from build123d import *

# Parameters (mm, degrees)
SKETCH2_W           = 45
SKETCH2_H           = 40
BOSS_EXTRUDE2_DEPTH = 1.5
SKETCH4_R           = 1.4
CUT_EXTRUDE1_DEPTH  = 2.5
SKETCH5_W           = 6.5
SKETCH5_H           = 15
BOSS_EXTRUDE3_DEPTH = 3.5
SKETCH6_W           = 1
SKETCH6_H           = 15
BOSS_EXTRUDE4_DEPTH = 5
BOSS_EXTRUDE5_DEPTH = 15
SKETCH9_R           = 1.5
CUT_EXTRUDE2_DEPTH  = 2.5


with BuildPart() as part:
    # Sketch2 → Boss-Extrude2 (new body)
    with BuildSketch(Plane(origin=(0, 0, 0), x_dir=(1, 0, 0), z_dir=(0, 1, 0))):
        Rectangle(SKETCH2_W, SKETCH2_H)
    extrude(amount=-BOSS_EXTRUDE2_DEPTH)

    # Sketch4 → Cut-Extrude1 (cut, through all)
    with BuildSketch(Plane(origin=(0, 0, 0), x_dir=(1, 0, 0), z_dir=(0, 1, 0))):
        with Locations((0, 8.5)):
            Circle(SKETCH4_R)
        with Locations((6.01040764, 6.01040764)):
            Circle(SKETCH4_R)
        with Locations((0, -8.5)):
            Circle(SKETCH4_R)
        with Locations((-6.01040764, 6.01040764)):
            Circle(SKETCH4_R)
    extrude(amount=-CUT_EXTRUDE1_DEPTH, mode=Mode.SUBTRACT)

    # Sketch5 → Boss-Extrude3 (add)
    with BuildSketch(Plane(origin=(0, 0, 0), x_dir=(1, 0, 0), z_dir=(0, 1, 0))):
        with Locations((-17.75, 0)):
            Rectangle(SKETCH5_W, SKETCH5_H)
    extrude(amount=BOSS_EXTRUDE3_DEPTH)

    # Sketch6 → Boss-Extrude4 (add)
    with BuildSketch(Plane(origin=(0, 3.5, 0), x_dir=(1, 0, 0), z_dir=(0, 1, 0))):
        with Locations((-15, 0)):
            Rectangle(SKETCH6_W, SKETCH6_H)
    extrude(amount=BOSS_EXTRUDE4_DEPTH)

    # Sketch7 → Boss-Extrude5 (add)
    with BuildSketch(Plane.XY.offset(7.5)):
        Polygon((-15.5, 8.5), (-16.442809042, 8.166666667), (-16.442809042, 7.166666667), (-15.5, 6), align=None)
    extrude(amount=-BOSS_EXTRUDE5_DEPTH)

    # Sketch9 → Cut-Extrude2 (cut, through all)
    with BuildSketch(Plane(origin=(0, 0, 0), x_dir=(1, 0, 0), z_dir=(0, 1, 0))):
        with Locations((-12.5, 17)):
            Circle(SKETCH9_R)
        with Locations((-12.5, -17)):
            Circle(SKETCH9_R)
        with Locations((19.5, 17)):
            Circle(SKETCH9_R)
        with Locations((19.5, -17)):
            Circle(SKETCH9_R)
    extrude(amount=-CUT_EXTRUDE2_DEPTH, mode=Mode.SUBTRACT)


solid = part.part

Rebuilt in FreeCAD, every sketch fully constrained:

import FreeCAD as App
import Part
import Sketcher
from FreeCAD import Vector

doc = App.newDocument("Part")
params = doc.addObject("Spreadsheet::Sheet", "Params")
for row, (alias, value) in enumerate([
    ("sketch1_width", "45 mm"),
    ("sketch1_height", "40 mm"),
    ("pad1_length", "1.5 mm"),
    ("sketch2_diameter", "2.8 mm"),
    ("sketch3_height", "15 mm"),
    ("sketch3_width", "6.5 mm"),
    ("pad2_length", "3.5 mm"),
    ("sketch4_width", "1 mm"),
    ("sketch4_height", "15 mm"),
    ("pad3_length", "5 mm"),
    ("sketch5_height", "1 mm"),
    ("sketch5_length", "1 mm"),
    ("sketch5_height2", "2.5 mm"),
    ("sketch5_length2", "1.5 mm"),
    ("pad4_length", "15 mm"),
    ("sketch6_diameter", "3 mm"),
], start=1):
    params.set(f"A{row}", alias)
    params.set(f"B{row}", "=" + value)
    params.setAlias(f"B{row}", alias)

body = doc.addObject("PartDesign::Body", "Body")

sketch1 = body.newObject("Sketcher::SketchObject", "Sketch")
sketch1.AttachmentSupport = (doc.getObject("XZ_Plane"), [""])
sketch1.MapMode = "FlatFace"
sketch1.addGeometry([
    Part.LineSegment(Vector(-22, -20, 0), Vector(-22, 20, 0)),
    Part.LineSegment(Vector(-22, 20, 0), Vector(22, 20, 0)),
    Part.LineSegment(Vector(22, 20, 0), Vector(22, -20, 0)),
    Part.LineSegment(Vector(22, -20, 0), Vector(-22, -20, 0)),
], False)
sketch1.addConstraint([
    Sketcher.Constraint("Coincident", 0, 2, 1, 1),
    Sketcher.Constraint("Coincident", 1, 2, 2, 1),
    Sketcher.Constraint("Coincident", 2, 2, 3, 1),
    Sketcher.Constraint("Coincident", 3, 2, 0, 1),
    Sketcher.Constraint("Vertical", 0),
    Sketcher.Constraint("Horizontal", 1),
    Sketcher.Constraint("Vertical", 2),
    Sketcher.Constraint("Horizontal", 3),
    Sketcher.Constraint("Symmetric", 0, 2, 2, 2, -1, 1),
    Sketcher.Constraint("DistanceX", 1, 1, 1, 2, 45.0),
    Sketcher.Constraint("DistanceY", 0, 1, 0, 2, 40.0),
])
sketch1.setExpression("Constraints[9]", "Params.sketch1_width")
sketch1.setExpression("Constraints[10]", "Params.sketch1_height")
pad1 = body.newObject("PartDesign::Pad", "Pad")
pad1.Profile = sketch1
pad1.setExpression("Length", "Params.pad1_length")

sketch2 = body.newObject("Sketcher::SketchObject", "Sketch001")
sketch2.AttachmentSupport = (doc.getObject("XZ_Plane"), [""])
sketch2.MapMode = "FlatFace"
sketch2.addGeometry([
    Part.Circle(Vector(0, -8.5, 0), Vector(0, 0, 1), 1.4),
    Part.Circle(Vector(6, -6, 0), Vector(0, 0, 1), 1.4),
    Part.Circle(Vector(0, 8.5, 0), Vector(0, 0, 1), 1.4),
    Part.Circle(Vector(-6, -6, 0), Vector(0, 0, 1), 1.4),
], False)
sketch2.addConstraint([
    Sketcher.Constraint("Equal", 0, 1),
    Sketcher.Constraint("Equal", 1, 2),
    Sketcher.Constraint("Equal", 2, 3),
    Sketcher.Constraint("Symmetric", 0, 3, 2, 3, -1, 1),
    Sketcher.Constraint("Symmetric", 1, 3, 3, 3, -2),
    Sketcher.Constraint("PointOnObject", 0, 3, -2),
    Sketcher.Constraint("Diameter", 0, 2.8),
    Sketcher.Constraint("DistanceY", 0, 3, 2, 3, 17.0),
    Sketcher.Constraint("DistanceX", -1, 1, 1, 3, 6.010408),
    Sketcher.Constraint("DistanceY", 1, 3, -1, 1, 6.010408),
])
sketch2.setExpression("Constraints[6]", "Params.sketch2_diameter")
pocket1 = body.newObject("PartDesign::Pocket", "Pocket")
pocket1.Profile = sketch2
pocket1.Type = "ThroughAll"
pocket1.Reversed = True

sketch3 = body.newObject("Sketcher::SketchObject", "Sketch002")
sketch3.AttachmentSupport = (doc.getObject("XZ_Plane"), [""])
sketch3.MapMode = "FlatFace"
sketch3.addGeometry([
    Part.LineSegment(Vector(-21, -8, 0), Vector(-21, 8, 0)),
    Part.LineSegment(Vector(-21, 8, 0), Vector(-14, 8, 0)),
    Part.LineSegment(Vector(-14, 8, 0), Vector(-14, -8, 0)),
    Part.LineSegment(Vector(-14, -8, 0), Vector(-21, -8, 0)),
], False)
sketch3.addConstraint([
    Sketcher.Constraint("Coincident", 0, 2, 1, 1),
    Sketcher.Constraint("Coincident", 1, 2, 2, 1),
    Sketcher.Constraint("Coincident", 2, 2, 3, 1),
    Sketcher.Constraint("Coincident", 3, 2, 0, 1),
    Sketcher.Constraint("Vertical", 0),
    Sketcher.Constraint("Horizontal", 1),
    Sketcher.Constraint("Vertical", 2),
    Sketcher.Constraint("Horizontal", 3),
    Sketcher.Constraint("DistanceY", 0, 1, 0, 2, 15.0),
    Sketcher.Constraint("DistanceX", 1, 1, 1, 2, 6.5),
    Sketcher.Constraint("DistanceX", 0, 2, -1, 1, 21.0),
    Sketcher.Constraint("DistanceY", -1, 1, 0, 2, 7.5),
])
sketch3.setExpression("Constraints[8]", "Params.sketch3_height")
sketch3.setExpression("Constraints[9]", "Params.sketch3_width")
pad2 = body.newObject("PartDesign::Pad", "Pad001")
pad2.Profile = sketch3
pad2.setExpression("Length", "Params.pad2_length")
pad2.Reversed = True

sketch4 = body.newObject("Sketcher::SketchObject", "Sketch003")
sketch4.AttachmentSupport = (doc.getObject("XZ_Plane"), [""])
sketch4.MapMode = "FlatFace"
sketch4.AttachmentOffset = App.Placement(Vector(0, 0, -3.5), App.Rotation())
sketch4.addGeometry([
    Part.LineSegment(Vector(-15.5, -7.5, 0), Vector(-15.5, 7.5, 0)),
    Part.LineSegment(Vector(-15.5, 7.5, 0), Vector(-14.5, 7.5, 0)),
    Part.LineSegment(Vector(-14.5, 7.5, 0), Vector(-14.5, -7.5, 0)),
    Part.LineSegment(Vector(-14.5, -7.5, 0), Vector(-15.5, -7.5, 0)),
], False)
sketch4.addConstraint([
    Sketcher.Constraint("Coincident", 0, 2, 1, 1),
    Sketcher.Constraint("Coincident", 1, 2, 2, 1),
    Sketcher.Constraint("Coincident", 2, 2, 3, 1),
    Sketcher.Constraint("Coincident", 3, 2, 0, 1),
    Sketcher.Constraint("Vertical", 0),
    Sketcher.Constraint("Horizontal", 1),
    Sketcher.Constraint("Vertical", 2),
    Sketcher.Constraint("Horizontal", 3),
    Sketcher.Constraint("DistanceX", 1, 1, 1, 2, 1.0),
    Sketcher.Constraint("DistanceY", 0, 1, 0, 2, 15.0),
    Sketcher.Constraint("DistanceX", 0, 2, -1, 1, 15.5),
    Sketcher.Constraint("DistanceY", -1, 1, 0, 2, 7.5),
])
sketch4.setExpression("Constraints[8]", "Params.sketch4_width")
sketch4.setExpression("Constraints[9]", "Params.sketch4_height")
pad3 = body.newObject("PartDesign::Pad", "Pad002")
pad3.Profile = sketch4
pad3.setExpression("Length", "Params.pad3_length")
pad3.Reversed = True

sketch5 = body.newObject("Sketcher::SketchObject", "Sketch004")
sketch5.AttachmentSupport = (doc.getObject("XY_Plane"), [""])
sketch5.MapMode = "FlatFace"
sketch5.AttachmentOffset = App.Placement(Vector(0, 0, 7.5), App.Rotation())
sketch5.addGeometry([
    Part.LineSegment(Vector(-15.5, 8.5, 0), Vector(-16.4, 8.2, 0)),
    Part.LineSegment(Vector(-16.4, 8.2, 0), Vector(-16.4, 7.2, 0)),
    Part.LineSegment(Vector(-16.4, 7.2, 0), Vector(-15.5, 6, 0)),
    Part.LineSegment(Vector(-15.5, 6, 0), Vector(-15.5, 8.5, 0)),
], False)
sketch5.addConstraint([
    Sketcher.Constraint("Coincident", 0, 2, 1, 1),
    Sketcher.Constraint("Coincident", 1, 2, 2, 1),
    Sketcher.Constraint("Coincident", 2, 2, 3, 1),
    Sketcher.Constraint("Coincident", 3, 2, 0, 1),
    Sketcher.Constraint("Vertical", 1),
    Sketcher.Constraint("Vertical", 3),
    Sketcher.Constraint("DistanceY", 1, 2, 1, 1, 1.0),
    Sketcher.Constraint("Distance", 0, 1.0),
    Sketcher.Constraint("DistanceY", 3, 1, 3, 2, 2.5),
    Sketcher.Constraint("DistanceY", -1, 1, 2, 2, 6.0),
    Sketcher.Constraint("Distance", 2, 1.5),
    Sketcher.Constraint("DistanceX", 2, 2, -1, 1, 15.5),
])
sketch5.setExpression("Constraints[6]", "Params.sketch5_height")
sketch5.setExpression("Constraints[7]", "Params.sketch5_length")
sketch5.setExpression("Constraints[8]", "Params.sketch5_height2")
sketch5.setExpression("Constraints[10]", "Params.sketch5_length2")
pad4 = body.newObject("PartDesign::Pad", "Pad003")
pad4.Profile = sketch5
pad4.setExpression("Length", "Params.pad4_length")
pad4.Reversed = True

sketch6 = body.newObject("Sketcher::SketchObject", "Sketch005")
sketch6.AttachmentSupport = (doc.getObject("XZ_Plane"), [""])
sketch6.MapMode = "FlatFace"
sketch6.addGeometry([
    Part.Circle(Vector(-12.5, -17, 0), Vector(0, 0, 1), 1.5),
    Part.Circle(Vector(-12.5, 17, 0), Vector(0, 0, 1), 1.5),
    Part.Circle(Vector(19.5, -17, 0), Vector(0, 0, 1), 1.5),
    Part.Circle(Vector(19.5, 17, 0), Vector(0, 0, 1), 1.5),
], False)
sketch6.addConstraint([
    Sketcher.Constraint("Equal", 0, 1),
    Sketcher.Constraint("Equal", 1, 2),
    Sketcher.Constraint("Equal", 2, 3),
    Sketcher.Constraint("Symmetric", 0, 3, 1, 3, -1),
    Sketcher.Constraint("Symmetric", 2, 3, 3, 3, -1),
    Sketcher.Constraint("Horizontal", 0, 3, 2, 3),
    Sketcher.Constraint("Diameter", 0, 3.0),
    Sketcher.Constraint("DistanceY", 0, 3, -1, 1, 17.0),
    Sketcher.Constraint("DistanceX", 0, 3, 2, 3, 32.0),
    Sketcher.Constraint("DistanceX", 0, 3, -1, 1, 12.5),
])
sketch6.setExpression("Constraints[6]", "Params.sketch6_diameter")
pocket2 = body.newObject("PartDesign::Pocket", "Pocket001")
pocket2.Profile = sketch6
pocket2.Type = "ThroughAll"
pocket2.Reversed = True

doc.recompute()
